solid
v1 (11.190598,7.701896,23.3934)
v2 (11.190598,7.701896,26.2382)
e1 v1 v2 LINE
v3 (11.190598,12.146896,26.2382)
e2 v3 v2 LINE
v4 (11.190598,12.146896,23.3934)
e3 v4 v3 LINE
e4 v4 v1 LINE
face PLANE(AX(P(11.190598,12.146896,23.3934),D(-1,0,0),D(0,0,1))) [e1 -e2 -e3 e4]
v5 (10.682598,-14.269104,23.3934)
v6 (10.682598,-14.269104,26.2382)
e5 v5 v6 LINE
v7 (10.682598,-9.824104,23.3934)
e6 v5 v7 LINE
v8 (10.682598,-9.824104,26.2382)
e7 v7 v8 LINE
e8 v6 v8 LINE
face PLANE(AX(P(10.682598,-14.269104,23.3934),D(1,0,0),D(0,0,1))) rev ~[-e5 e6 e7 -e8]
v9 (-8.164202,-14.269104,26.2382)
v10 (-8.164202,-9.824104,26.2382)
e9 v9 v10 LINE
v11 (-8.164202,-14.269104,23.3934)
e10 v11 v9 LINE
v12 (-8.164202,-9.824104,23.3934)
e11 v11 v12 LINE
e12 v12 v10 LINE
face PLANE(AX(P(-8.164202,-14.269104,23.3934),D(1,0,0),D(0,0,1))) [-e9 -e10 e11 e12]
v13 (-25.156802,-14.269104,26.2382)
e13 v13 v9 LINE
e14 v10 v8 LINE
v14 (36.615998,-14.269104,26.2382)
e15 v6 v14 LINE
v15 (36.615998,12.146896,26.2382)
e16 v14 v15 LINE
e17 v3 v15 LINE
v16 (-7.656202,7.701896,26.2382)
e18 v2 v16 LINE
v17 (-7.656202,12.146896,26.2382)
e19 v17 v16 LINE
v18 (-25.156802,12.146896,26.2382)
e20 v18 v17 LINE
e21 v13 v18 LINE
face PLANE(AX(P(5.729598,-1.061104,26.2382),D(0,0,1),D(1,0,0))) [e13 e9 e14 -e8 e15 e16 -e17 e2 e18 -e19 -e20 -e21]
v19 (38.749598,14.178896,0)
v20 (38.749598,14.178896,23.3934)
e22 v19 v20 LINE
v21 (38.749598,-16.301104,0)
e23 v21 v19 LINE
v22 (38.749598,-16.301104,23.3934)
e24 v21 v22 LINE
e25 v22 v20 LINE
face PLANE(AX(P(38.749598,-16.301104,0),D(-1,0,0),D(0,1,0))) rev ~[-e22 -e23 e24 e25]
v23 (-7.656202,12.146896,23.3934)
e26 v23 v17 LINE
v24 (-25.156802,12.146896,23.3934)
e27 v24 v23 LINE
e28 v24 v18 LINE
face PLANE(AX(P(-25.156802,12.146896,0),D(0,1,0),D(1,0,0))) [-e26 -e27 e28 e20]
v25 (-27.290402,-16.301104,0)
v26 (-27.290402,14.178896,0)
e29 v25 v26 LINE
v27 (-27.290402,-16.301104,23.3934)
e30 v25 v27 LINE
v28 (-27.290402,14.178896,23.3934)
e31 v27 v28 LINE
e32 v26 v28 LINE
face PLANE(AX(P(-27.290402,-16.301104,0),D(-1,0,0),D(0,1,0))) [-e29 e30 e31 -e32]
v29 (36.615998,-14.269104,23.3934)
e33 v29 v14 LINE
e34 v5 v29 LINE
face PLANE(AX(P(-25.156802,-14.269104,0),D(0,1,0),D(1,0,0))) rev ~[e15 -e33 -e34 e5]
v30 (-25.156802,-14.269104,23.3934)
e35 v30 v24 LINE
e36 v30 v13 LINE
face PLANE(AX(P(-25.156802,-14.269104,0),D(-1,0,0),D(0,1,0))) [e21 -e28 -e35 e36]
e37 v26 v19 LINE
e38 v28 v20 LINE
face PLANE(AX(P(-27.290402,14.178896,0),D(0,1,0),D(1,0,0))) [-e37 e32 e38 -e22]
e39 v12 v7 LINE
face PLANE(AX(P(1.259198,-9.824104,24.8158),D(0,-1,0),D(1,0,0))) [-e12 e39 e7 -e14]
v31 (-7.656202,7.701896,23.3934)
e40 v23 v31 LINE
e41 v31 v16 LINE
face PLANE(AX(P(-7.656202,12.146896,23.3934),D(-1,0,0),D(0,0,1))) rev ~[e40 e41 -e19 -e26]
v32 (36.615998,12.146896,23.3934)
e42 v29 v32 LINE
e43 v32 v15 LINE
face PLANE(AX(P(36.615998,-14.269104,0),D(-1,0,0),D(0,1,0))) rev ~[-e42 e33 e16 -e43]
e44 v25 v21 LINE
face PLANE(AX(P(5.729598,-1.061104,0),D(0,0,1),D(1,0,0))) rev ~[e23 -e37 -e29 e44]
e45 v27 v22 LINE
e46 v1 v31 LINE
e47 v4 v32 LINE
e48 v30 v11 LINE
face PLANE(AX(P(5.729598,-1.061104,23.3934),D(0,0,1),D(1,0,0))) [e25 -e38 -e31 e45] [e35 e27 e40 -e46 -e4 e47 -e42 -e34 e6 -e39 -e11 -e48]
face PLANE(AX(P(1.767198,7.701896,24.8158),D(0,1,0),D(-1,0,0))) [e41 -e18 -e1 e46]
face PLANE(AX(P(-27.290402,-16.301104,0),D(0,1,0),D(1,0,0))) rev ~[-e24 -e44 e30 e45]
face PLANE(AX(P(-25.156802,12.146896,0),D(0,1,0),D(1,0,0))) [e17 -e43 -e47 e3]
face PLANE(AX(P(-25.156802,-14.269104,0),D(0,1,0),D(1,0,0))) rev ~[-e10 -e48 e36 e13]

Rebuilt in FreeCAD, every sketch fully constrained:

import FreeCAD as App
import Part
import Sketcher
Q = App.Units.Quantity

doc = App.newDocument("Part")
body = doc.addObject("PartDesign::Body", "Body")

sketch1 = body.newObject("Sketcher::SketchObject", "Sketch")
sketch1.AttachmentSupport = (doc.getObject("XY_Plane"), [""])
sketch1.MapMode = "FlatFace"
sketch1.addGeometry(Part.LineSegment(App.Vector(-27.290402, 14.178896, 0), App.Vector(-27.290402, -16.301104, 0)), False)
sketch1.addGeometry(Part.LineSegment(App.Vector(-27.290402, -16.301104, 0), App.Vector(38.749598, -16.301104, 0)), False)
sketch1.addGeometry(Part.LineSegment(App.Vector(38.749598, -16.301104, 0), App.Vector(38.749598, 14.178896, 0)), False)
sketch1.addGeometry(Part.LineSegment(App.Vector(38.749598, 14.178896, 0), App.Vector(-27.290402, 14.178896, 0)), False)
sketch1.addGeometry(Part.LineSegment(App.Vector(36.615998, -14.269104, 0), App.Vector(-25.156802, -14.269104, 0)), False)
sketch1.addGeometry(Part.LineSegment(App.Vector(-25.156802, -14.269104, 0), App.Vector(-25.156802, 12.146896, 0)), False)
sketch1.addGeometry(Part.LineSegment(App.Vector(-25.156802, 12.146896, 0), App.Vector(36.615998, 12.146896, 0)), False)
sketch1.addGeometry(Part.LineSegment(App.Vector(36.615998, 12.146896, 0), App.Vector(36.615998, -14.269104, 0)), False)
sketch1.addConstraint(Sketcher.Constraint("Coincident", 0, 2, 1, 1))
sketch1.addConstraint(Sketcher.Constraint("Coincident", 1, 2, 2, 1))
sketch1.addConstraint(Sketcher.Constraint("Coincident", 2, 2, 3, 1))
sketch1.addConstraint(Sketcher.Constraint("Coincident", 3, 2, 0, 1))
sketch1.addConstraint(Sketcher.Constraint("Coincident", 4, 2, 5, 1))
sketch1.addConstraint(Sketcher.Constraint("Coincident", 5, 2, 6, 1))
sketch1.addConstraint(Sketcher.Constraint("Coincident", 6, 2, 7, 1))
sketch1.addConstraint(Sketcher.Constraint("Coincident", 7, 2, 4, 1))
sketch1.addConstraint(Sketcher.Constraint("Vertical", 0))
sketch1.addConstraint(Sketcher.Constraint("Horizontal", 1))
sketch1.addConstraint(Sketcher.Constraint("Vertical", 2))
sketch1.addConstraint(Sketcher.Constraint("Horizontal", 3))
sketch1.addConstraint(Sketcher.Constraint("Horizontal", 4))
sketch1.addConstraint(Sketcher.Constraint("Vertical", 5))
sketch1.addConstraint(Sketcher.Constraint("Horizontal", 6))
sketch1.addConstraint(Sketcher.Constraint("Vertical", 7))
sketch1.addConstraint(Sketcher.Constraint("DistanceX", 1, 1, 1, 2, Q("2.6 in")))
sketch1.addConstraint(Sketcher.Constraint("DistanceY", 0, 2, 0, 1, Q("1.2 in")))
sketch1.addConstraint(Sketcher.Constraint("DistanceY", 5, 1, 5, 2, Q("1.04 in")))
sketch1.addConstraint(Sketcher.Constraint("DistanceX", 4, 2, 4, 1, Q("2.432 in")))
sketch1.addConstraint(Sketcher.Constraint("DistanceY", 0, 2, 4, 2, Q("0.08 in")))
sketch1.addConstraint(Sketcher.Constraint("DistanceX", 0, 2, 4, 2, Q("0.084 in")))
sketch1.addConstraint(Sketcher.Constraint("DistanceX", 0, 2, -1, 1, Q("27.290402 mm")))
sketch1.addConstraint(Sketcher.Constraint("DistanceY", 0, 2, -1, 1, Q("16.301104 mm")))
pad1 = body.newObject("PartDesign::Pad", "Pad")
pad1.Profile = sketch1
pad1.Length = Q("0.921 in")

sketch2 = body.newObject("Sketcher::SketchObject", "Sketch001")
sketch2.AttachmentSupport = (doc.getObject("XY_Plane"), [""])
sketch2.MapMode = "FlatFace"
sketch2.addGeometry(Part.LineSegment(App.Vector(-25.156802, 12.146896, 0), App.Vector(-25.156802, -14.269104, 0)), False)
sketch2.addGeometry(Part.LineSegment(App.Vector(-25.156802, -14.269104, 0), App.Vector(36.615998, -14.269104, 0)), False)
sketch2.addGeometry(Part.LineSegment(App.Vector(36.615998, -14.269104, 0), App.Vector(36.615998, 12.146896, 0)), False)
sketch2.addGeometry(Part.LineSegment(App.Vector(36.615998, 12.146896, 0), App.Vector(-25.156802, 12.146896, 0)), False)
sketch2.addConstraint(Sketcher.Constraint("Coincident", 0, 2, 1, 1))
sketch2.addConstraint(Sketcher.Constraint("Coincident", 1, 2, 2, 1))
sketch2.addConstraint(Sketcher.Constraint("Coincident", 2, 2, 3, 1))
sketch2.addConstraint(Sketcher.Constraint("Coincident", 3, 2, 0, 1))
sketch2.addConstraint(Sketcher.Constraint("Vertical", 0))
sketch2.addConstraint(Sketcher.Constraint("Horizontal", 1))
sketch2.addConstraint(Sketcher.Constraint("Vertical", 2))
sketch2.addConstraint(Sketcher.Constraint("Horizontal", 3))
sketch2.addConstraint(Sketcher.Constraint("DistanceY", 0, 2, 0, 1, Q("1.04 in")))
sketch2.addConstraint(Sketcher.Constraint("DistanceX", 1, 1, 1, 2, Q("2.432 in")))
sketch2.addConstraint(Sketcher.Constraint("DistanceX", 0, 2, -1, 1, Q("25.156802 mm")))
sketch2.addConstraint(Sketcher.Constraint("DistanceY", 0, 2, -1, 1, Q("14.269104 mm")))
pad2 = body.newObject("PartDesign::Pad", "Pad001")
pad2.Profile = sketch2
pad2.Length = Q("1.033 in")

sketch3 = body.newObject("Sketcher::SketchObject", "Sketch002")
sketch3.AttachmentSupport = (doc.getObject("XZ_Plane"), [""])
sketch3.MapMode = "FlatFace"
sketch3.AttachmentOffset = App.Placement(App.Vector(0, 0, 14.269104), App.Rotation())
sketch3.addGeometry(Part.LineSegment(App.Vector(-8.164202, 26.2382, 0), App.Vector(-8.164202, 23.3934, 0)), False)
sketch3.addGeometry(Part.LineSegment(App.Vector(-8.164202, 23.3934, 0), App.Vector(10.682598, 23.3934, 0)), False)
sketch3.addGeometry(Part.LineSegment(App.Vector(10.682598, 23.3934, 0), App.Vector(10.682598, 26.2382, 0)), False)
sketch3.addGeometry(Part.LineSegment(App.Vector(10.682598, 26.2382, 0), App.Vector(-8.164202, 26.2382, 0)), False)
sketch3.addConstraint(Sketcher.Constraint("Coincident", 0, 2, 1, 1))
sketch3.addConstraint(Sketcher.Constraint("Coincident", 1, 2, 2, 1))
sketch3.addConstraint(Sketcher.Constraint("Coincident", 2, 2, 3, 1))
sketch3.addConstraint(Sketcher.Constraint("Coincident", 3, 2, 0, 1))
sketch3.addConstraint(Sketcher.Constraint("Vertical", 0))
sketch3.addConstraint(Sketcher.Constraint("Horizontal", 1))
sketch3.addConstraint(Sketcher.Constraint("Vertical", 2))
sketch3.addConstraint(Sketcher.Constraint("Horizontal", 3))
sketch3.addConstraint(Sketcher.Constraint("DistanceX", 1, 1, 1, 2, Q("0.742 in")))
sketch3.addConstraint(Sketcher.Constraint("DistanceY", 0, 2, 0, 1, Q("0.112 in")))
sketch3.addConstraint(Sketcher.Constraint("DistanceY", -1, 1, 0, 2, Q("0.921 in")))
sketch3.addConstraint(Sketcher.Constraint("DistanceX", 0, 2, -1, 1, Q("8.164202 mm")))
pocket1 = body.newObject("PartDesign::Pocket", "Pocket")
pocket1.Profile = sketch3
pocket1.Length = Q("0.175 in")

sketch4 = body.newObject("Sketcher::SketchObject", "Sketch003")
sketch4.AttachmentSupport = (doc.getObject("XZ_Plane"), [""])
sketch4.MapMode = "FlatFace"
sketch4.AttachmentOffset = App.Placement(App.Vector(0, 0, -12.146896), App.Rotation())
sketch4.addGeometry(Part.LineSegment(App.Vector(11.190598, 26.2382, 0), App.Vector(11.190598, 23.3934, 0)), False)
sketch4.addGeometry(Part.LineSegment(App.Vector(11.190598, 23.3934, 0), App.Vector(-7.656202, 23.3934, 0)), False)
sketch4.addGeometry(Part.LineSegment(App.Vector(-7.656202, 23.3934, 0), App.Vector(-7.656202, 26.2382, 0)), False)
sketch4.addGeometry(Part.LineSegment(App.Vector(-7.656202, 26.2382, 0), App.Vector(11.190598, 26.2382, 0)), False)
sketch4.addConstraint(Sketcher.Constraint("Coincident", 0, 2, 1, 1))
sketch4.addConstraint(Sketcher.Constraint("Coincident", 1, 2, 2, 1))
sketch4.addConstraint(Sketcher.Constraint("Coincident", 2, 2, 3, 1))
sketch4.addConstraint(Sketcher.Constraint("Coincident", 3, 2, 0, 1))
sketch4.addConstraint(Sketcher.Constraint("Vertical", 0))
sketch4.addConstraint(Sketcher.Constraint("Horizontal", 1))
sketch4.addConstraint(Sketcher.Constraint("Vertical", 2))
sketch4.addConstraint(Sketcher.Constraint("Horizontal", 3))
sketch4.addConstraint(Sketcher.Constraint("DistanceX", 1, 2, 1, 1, Q("0.742 in")))
sketch4.addConstraint(Sketcher.Constraint("DistanceY", 0, 2, 0, 1, Q("0.112 in")))
sketch4.addConstraint(Sketcher.Constraint("DistanceY", -1, 1, 0, 2, Q("0.921 in")))
sketch4.addConstraint(Sketcher.Constraint("DistanceX", -1, 1, 0, 2, Q("11.190598 mm")))
pocket2 = body.newObject("PartDesign::Pocket", "Pocket001")
pocket2.Profile = sketch4
pocket2.Length = Q("0.175 in")
pocket2.Reversed = True

doc.recompute()
